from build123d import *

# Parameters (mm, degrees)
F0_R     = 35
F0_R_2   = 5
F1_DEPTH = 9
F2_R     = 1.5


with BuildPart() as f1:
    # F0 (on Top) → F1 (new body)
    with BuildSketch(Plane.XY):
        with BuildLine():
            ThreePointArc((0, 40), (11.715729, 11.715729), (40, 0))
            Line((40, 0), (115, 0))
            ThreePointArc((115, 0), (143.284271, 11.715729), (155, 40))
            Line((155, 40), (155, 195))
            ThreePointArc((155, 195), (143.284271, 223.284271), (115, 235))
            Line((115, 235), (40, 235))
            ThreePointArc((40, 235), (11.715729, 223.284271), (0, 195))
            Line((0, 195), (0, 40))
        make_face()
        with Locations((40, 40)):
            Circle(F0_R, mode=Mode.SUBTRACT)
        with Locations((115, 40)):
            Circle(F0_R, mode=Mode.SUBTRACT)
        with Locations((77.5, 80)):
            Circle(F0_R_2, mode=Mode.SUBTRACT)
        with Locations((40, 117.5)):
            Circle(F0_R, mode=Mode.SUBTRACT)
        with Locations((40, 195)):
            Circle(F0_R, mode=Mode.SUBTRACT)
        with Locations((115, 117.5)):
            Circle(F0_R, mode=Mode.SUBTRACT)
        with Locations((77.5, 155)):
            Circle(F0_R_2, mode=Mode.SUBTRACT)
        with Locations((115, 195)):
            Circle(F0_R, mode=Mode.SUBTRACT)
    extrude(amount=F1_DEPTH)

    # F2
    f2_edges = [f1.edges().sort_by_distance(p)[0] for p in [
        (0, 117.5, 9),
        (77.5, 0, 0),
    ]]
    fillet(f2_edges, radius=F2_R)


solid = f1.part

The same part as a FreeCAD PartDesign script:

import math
import FreeCAD as App
import Part
import Sketcher


def edges_at(feature, points):
    """Names of the edges that pass closest to the given points."""
    edges = feature.Shape.Edges
    near = lambda p: min(range(len(edges)), key=lambda i: edges[i].distToShape(Part.Vertex(*p))[0])
    return sorted({f"Edge{near(p) + 1}" for p in points})

doc = App.newDocument("Part")
body = doc.addObject("PartDesign::Body", "Body")

# Sketch on XY plane
sketch1 = body.newObject("Sketcher::SketchObject", "Sketch")
sketch1.AttachmentSupport = (doc.getObject("XY_Plane"), [""])
sketch1.MapMode = "FlatFace"
sketch1.addGeometry(Part.ArcOfCircle(Part.Circle(App.Vector(40, 40, 0), App.Vector(0, 0, 1), 40), math.radians(-180), math.radians(-90)), False)
sketch1.addGeometry(Part.LineSegment(App.Vector(40, 0, 0), App.Vector(115, 0, 0)), False)
sketch1.addGeometry(Part.ArcOfCircle(Part.Circle(App.Vector(115, 40, 0), App.Vector(0, 0, 1), 40), math.radians(-90), math.radians(0)), False)
sketch1.addGeometry(Part.LineSegment(App.Vector(155, 40, 0), App.Vector(155, 195, 0)), False)
sketch1.addGeometry(Part.ArcOfCircle(Part.Circle(App.Vector(115, 195, 0), App.Vector(0, 0, 1), 40), math.radians(0), math.radians(90)), False)
sketch1.addGeometry(Part.LineSegment(App.Vector(115, 235, 0), App.Vector(40, 235, 0)), False)
sketch1.addGeometry(Part.ArcOfCircle(Part.Circle(App.Vector(40, 195, 0), App.Vector(0, 0, 1), 40), math.radians(90), math.radians(180)), False)
sketch1.addGeometry(Part.LineSegment(App.Vector(0, 195, 0), App.Vector(0, 40, 0)), False)
sketch1.addGeometry(Part.Circle(App.Vector(40, 40, 0), App.Vector(0, 0, 1), 35), False)
sketch1.addGeometry(Part.Circle(App.Vector(115, 40, 0), App.Vector(0, 0, 1), 35), False)
sketch1.addGeometry(Part.Circle(App.Vector(78, 80, 0), App.Vector(0, 0, 1), 5), False)
sketch1.addGeometry(Part.Circle(App.Vector(40, 118, 0), App.Vector(0, 0, 1), 35), False)
sketch1.addGeometry(Part.Circle(App.Vector(40, 195, 0), App.Vector(0, 0, 1), 35), False)
sketch1.addGeometry(Part.Circle(App.Vector(78, 155, 0), App.Vector(0, 0, 1), 5), False)
sketch1.addGeometry(Part.Circle(App.Vector(115, 118, 0), App.Vector(0, 0, 1), 35), False)
sketch1.addGeometry(Part.Circle(App.Vector(115, 195, 0), App.Vector(0, 0, 1), 35), False)
sketch1.addConstraint(Sketcher.Constraint("Tangent", 0, 2, 1, 1))
sketch1.addConstraint(Sketcher.Constraint("Tangent", 1, 2, 2, 1))
sketch1.addConstraint(Sketcher.Constraint("Tangent", 2, 2, 3, 1))
sketch1.addConstraint(Sketcher.Constraint("Tangent", 3, 2, 4, 1))
sketch1.addConstraint(Sketcher.Constraint("Tangent", 4, 2, 5, 1))
sketch1.addConstraint(Sketcher.Constraint("Tangent", 5, 2, 6, 1))
sketch1.addConstraint(Sketcher.Constraint("Tangent", 6, 2, 7, 1))
sketch1.addConstraint(Sketcher.Constraint("Tangent", 7, 2, 0, 1))
sketch1.addConstraint(Sketcher.Constraint("Horizontal", 1))
sketch1.addConstraint(Sketcher.Constraint("Vertical", 3))
sketch1.addConstraint(Sketcher.Constraint("Horizontal", 5))
sketch1.addConstraint(Sketcher.Constraint("Vertical", 7))
sketch1.addConstraint(Sketcher.Constraint("Coincident", 8, 3, 0, 3))
sketch1.addConstraint(Sketcher.Constraint("Coincident", 9, 3, 2, 3))
sketch1.addConstraint(Sketcher.Constraint("Coincident", 12, 3, 6, 3))
sketch1.addConstraint(Sketcher.Constraint("Coincident", 15, 3, 4, 3))
sketch1.addConstraint(Sketcher.Constraint("Equal", 0, 2))
sketch1.addConstraint(Sketcher.Constraint("Equal", 2, 4))
sketch1.addConstraint(Sketcher.Constraint("Equal", 4, 6))
sketch1.addConstraint(Sketcher.Constraint("Equal", 8, 9))
sketch1.addConstraint(Sketcher.Constraint("Equal", 9, 11))
sketch1.addConstraint(Sketcher.Constraint("Equal", 11, 12))
sketch1.addConstraint(Sketcher.Constraint("Equal", 10, 13))
sketch1.addConstraint(Sketcher.Constraint("Equal", 12, 14))
sketch1.addConstraint(Sketcher.Constraint("Equal", 14, 15))
sketch1.addConstraint(Sketcher.Constraint("PointOnObject", 0, 2, -1))
sketch1.addConstraint(Sketcher.Constraint("PointOnObject", 6, 2, -2))
sketch1.addConstraint(Sketcher.Constraint("Horizontal", 11, 3, 14, 3))
sketch1.addConstraint(Sketcher.Constraint("Vertical", 8, 3, 11, 3))
sketch1.addConstraint(Sketcher.Constraint("Vertical", 10, 3, 13, 3))
sketch1.addConstraint(Sketcher.Constraint("Vertical", 9, 3, 14, 3))
sketch1.addConstraint(Sketcher.Constraint("Diameter", 8, 70.0))
sketch1.addConstraint(Sketcher.Constraint("Diameter", 10, 10.0))
sketch1.addConstraint(Sketcher.Constraint("Radius", 0, 40.000001))
sketch1.addConstraint(Sketcher.Constraint("DistanceX", 1, 1, 1, 2, 75.0))
sketch1.addConstraint(Sketcher.Constraint("DistanceY", 3, 1, 3, 2, 155.0))
sketch1.addConstraint(Sketcher.Constraint("DistanceY", -1, 1, 10, 3, 80.0))
sketch1.addConstraint(Sketcher.Constraint("DistanceY", -1, 1, 13, 3, 155.0))
sketch1.addConstraint(Sketcher.Constraint("DistanceX", -1, 1, 10, 3, 77.5))
sketch1.addConstraint(Sketcher.Constraint("DistanceY", -1, 1, 11, 3, 117.5))
pad1 = body.newObject("PartDesign::Pad", "Pad")
pad1.Profile = sketch1
pad1.Length = 9
doc.recompute()

fillet = body.newObject("PartDesign::Fillet", "Fillet")
fillet.Base = (pad1, edges_at(pad1, [(0, 117.5, 9), (77.5, 0, 0)]))
fillet.Radius = 1.5

doc.recompute()
